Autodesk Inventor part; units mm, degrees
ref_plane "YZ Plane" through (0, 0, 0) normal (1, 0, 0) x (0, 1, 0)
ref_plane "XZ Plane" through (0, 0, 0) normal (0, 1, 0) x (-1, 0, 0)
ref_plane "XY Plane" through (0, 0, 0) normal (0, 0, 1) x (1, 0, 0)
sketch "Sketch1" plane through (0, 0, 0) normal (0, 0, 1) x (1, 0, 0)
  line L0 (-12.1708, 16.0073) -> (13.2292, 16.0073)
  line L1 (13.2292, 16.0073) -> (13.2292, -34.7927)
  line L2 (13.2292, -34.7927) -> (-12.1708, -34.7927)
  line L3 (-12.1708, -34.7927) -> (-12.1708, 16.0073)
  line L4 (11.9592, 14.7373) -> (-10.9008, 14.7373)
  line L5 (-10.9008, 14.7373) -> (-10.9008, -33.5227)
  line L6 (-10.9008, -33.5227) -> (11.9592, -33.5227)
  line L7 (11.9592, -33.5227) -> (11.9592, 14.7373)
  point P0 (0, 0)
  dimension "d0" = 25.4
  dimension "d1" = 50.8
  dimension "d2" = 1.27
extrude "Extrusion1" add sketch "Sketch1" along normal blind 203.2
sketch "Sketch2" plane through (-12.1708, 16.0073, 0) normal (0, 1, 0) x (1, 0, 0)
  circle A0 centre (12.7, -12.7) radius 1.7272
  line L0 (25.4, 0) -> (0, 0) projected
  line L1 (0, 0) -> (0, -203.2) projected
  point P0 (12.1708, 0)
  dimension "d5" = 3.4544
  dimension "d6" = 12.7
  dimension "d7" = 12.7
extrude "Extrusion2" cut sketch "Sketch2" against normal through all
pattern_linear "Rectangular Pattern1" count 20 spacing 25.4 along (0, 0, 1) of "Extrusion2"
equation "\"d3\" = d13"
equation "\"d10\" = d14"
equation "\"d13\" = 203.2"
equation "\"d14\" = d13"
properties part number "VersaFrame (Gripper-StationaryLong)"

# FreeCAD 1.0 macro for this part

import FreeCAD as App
import Part
import Sketcher

V = App.Vector
Q = App.Units.Quantity

doc = App.newDocument("Part")
body = doc.addObject("PartDesign::Body", "Body")

# Sketch on XY plane
sketch1 = doc.addObject("Sketcher::SketchObject", "Sketch")
body.addObject(sketch1)
sketch1.AttachmentSupport = (doc.XY_Plane, [""])
sketch1.MapMode = "FlatFace"
sketch1.addGeometry(Part.LineSegment(V(13.2292, 16.0073, 0), V(-12.1708, 16.0073, 0)), False)
sketch1.addGeometry(Part.LineSegment(V(-12.1708, 16.0073, 0), V(-12.1708, -34.7927, 0)), False)
sketch1.addGeometry(Part.LineSegment(V(-12.1708, -34.7927, 0), V(13.2292, -34.7927, 0)), False)
sketch1.addGeometry(Part.LineSegment(V(13.2292, -34.7927, 0), V(13.2292, 16.0073, 0)), False)
sketch1.addGeometry(Part.LineSegment(V(-10.9008, 14.7373, 0), V(11.9592, 14.7373, 0)), False)
sketch1.addGeometry(Part.LineSegment(V(11.9592, 14.7373, 0), V(11.9592, -33.5227, 0)), False)
sketch1.addGeometry(Part.LineSegment(V(11.9592, -33.5227, 0), V(-10.9008, -33.5227, 0)), False)
sketch1.addGeometry(Part.LineSegment(V(-10.9008, -33.5227, 0), V(-10.9008, 14.7373, 0)), False)
sketch1.addConstraint(Sketcher.Constraint("Coincident", 0, 2, 1, 1))
sketch1.addConstraint(Sketcher.Constraint("Coincident", 1, 2, 2, 1))
sketch1.addConstraint(Sketcher.Constraint("Coincident", 2, 2, 3, 1))
sketch1.addConstraint(Sketcher.Constraint("Coincident", 3, 2, 0, 1))
sketch1.addConstraint(Sketcher.Constraint("Coincident", 4, 2, 5, 1))
sketch1.addConstraint(Sketcher.Constraint("Coincident", 5, 2, 6, 1))
sketch1.addConstraint(Sketcher.Constraint("Coincident", 6, 2, 7, 1))
sketch1.addConstraint(Sketcher.Constraint("Coincident", 7, 2, 4, 1))
sketch1.addConstraint(Sketcher.Constraint("Horizontal", 0))
sketch1.addConstraint(Sketcher.Constraint("Vertical", 1))
sketch1.addConstraint(Sketcher.Constraint("Horizontal", 2))
sketch1.addConstraint(Sketcher.Constraint("Vertical", 3))
sketch1.addConstraint(Sketcher.Constraint("Horizontal", 4))
sketch1.addConstraint(Sketcher.Constraint("Vertical", 5))
sketch1.addConstraint(Sketcher.Constraint("Horizontal", 6))
sketch1.addConstraint(Sketcher.Constraint("Vertical", 7))
sketch1.addConstraint(Sketcher.Constraint("DistanceX", 0, 2, 0, 1, Q("1 in")))
sketch1.addConstraint(Sketcher.Constraint("DistanceY", 1, 2, 1, 1, Q("2 in")))
sketch1.addConstraint(Sketcher.Constraint("DistanceX", 4, 2, 3, 2, Q("0.05 in")))
sketch1.addConstraint(Sketcher.Constraint("DistanceY", 4, 2, 3, 2, Q("0.05 in")))
sketch1.addConstraint(Sketcher.Constraint("DistanceY", 2, 2, 5, 2, Q("0.05 in")))
sketch1.addConstraint(Sketcher.Constraint("DistanceX", 1, 2, 6, 2, Q("0.05 in")))
sketch1.addConstraint(Sketcher.Constraint("DistanceY", -1, 1, 0, 2, Q("0.6302 in")))
sketch1.addConstraint(Sketcher.Constraint("DistanceX", 0, 2, -1, 1, Q("12.1708 mm")))
pad1 = doc.addObject("PartDesign::Pad", "Pad")
body.addObject(pad1)
pad1.Profile = sketch1
pad1.Length = Q("8 in")

# Sketch on XZ plane
sketch2 = doc.addObject("Sketcher::SketchObject", "Sketch001")
body.addObject(sketch2)
sketch2.AttachmentSupport = (doc.XZ_Plane, [""])
sketch2.MapMode = "FlatFace"
sketch2.AttachmentOffset = App.Placement(V(0, 0, -0.6302087 * 25.4), App.Rotation())
sketch2.addGeometry(Part.Circle(V(0.5292, 12.7, 0), V(0, 0, 1), 1.7272), False)
sketch2.addConstraint(Sketcher.Constraint("Diameter", 0, Q("0.136 in")))
sketch2.addConstraint(Sketcher.Constraint("DistanceY", -1, 1, 0, 3, Q("0.5 in")))
sketch2.addConstraint(Sketcher.Constraint("DistanceX", -1, 1, 0, 3, Q("0.5292 mm")))
pocket1 = doc.addObject("PartDesign::Pocket", "Pocket")
body.addObject(pocket1)
pocket1.Profile = sketch2
pocket1.Type = "ThroughAll"
pocket1.Reversed = True
doc.recompute()

linearpattern = doc.addObject("PartDesign::LinearPattern", "LinearPattern")
body.addObject(linearpattern)
linearpattern.Originals = [pocket1]
linearpattern.Direction = (doc.Z_Axis, [""])
linearpattern.Mode = "offset"
linearpattern.Offset = Q("1 in")
linearpattern.Occurrences = 20
body.Tip = linearpattern

doc.recompute()
